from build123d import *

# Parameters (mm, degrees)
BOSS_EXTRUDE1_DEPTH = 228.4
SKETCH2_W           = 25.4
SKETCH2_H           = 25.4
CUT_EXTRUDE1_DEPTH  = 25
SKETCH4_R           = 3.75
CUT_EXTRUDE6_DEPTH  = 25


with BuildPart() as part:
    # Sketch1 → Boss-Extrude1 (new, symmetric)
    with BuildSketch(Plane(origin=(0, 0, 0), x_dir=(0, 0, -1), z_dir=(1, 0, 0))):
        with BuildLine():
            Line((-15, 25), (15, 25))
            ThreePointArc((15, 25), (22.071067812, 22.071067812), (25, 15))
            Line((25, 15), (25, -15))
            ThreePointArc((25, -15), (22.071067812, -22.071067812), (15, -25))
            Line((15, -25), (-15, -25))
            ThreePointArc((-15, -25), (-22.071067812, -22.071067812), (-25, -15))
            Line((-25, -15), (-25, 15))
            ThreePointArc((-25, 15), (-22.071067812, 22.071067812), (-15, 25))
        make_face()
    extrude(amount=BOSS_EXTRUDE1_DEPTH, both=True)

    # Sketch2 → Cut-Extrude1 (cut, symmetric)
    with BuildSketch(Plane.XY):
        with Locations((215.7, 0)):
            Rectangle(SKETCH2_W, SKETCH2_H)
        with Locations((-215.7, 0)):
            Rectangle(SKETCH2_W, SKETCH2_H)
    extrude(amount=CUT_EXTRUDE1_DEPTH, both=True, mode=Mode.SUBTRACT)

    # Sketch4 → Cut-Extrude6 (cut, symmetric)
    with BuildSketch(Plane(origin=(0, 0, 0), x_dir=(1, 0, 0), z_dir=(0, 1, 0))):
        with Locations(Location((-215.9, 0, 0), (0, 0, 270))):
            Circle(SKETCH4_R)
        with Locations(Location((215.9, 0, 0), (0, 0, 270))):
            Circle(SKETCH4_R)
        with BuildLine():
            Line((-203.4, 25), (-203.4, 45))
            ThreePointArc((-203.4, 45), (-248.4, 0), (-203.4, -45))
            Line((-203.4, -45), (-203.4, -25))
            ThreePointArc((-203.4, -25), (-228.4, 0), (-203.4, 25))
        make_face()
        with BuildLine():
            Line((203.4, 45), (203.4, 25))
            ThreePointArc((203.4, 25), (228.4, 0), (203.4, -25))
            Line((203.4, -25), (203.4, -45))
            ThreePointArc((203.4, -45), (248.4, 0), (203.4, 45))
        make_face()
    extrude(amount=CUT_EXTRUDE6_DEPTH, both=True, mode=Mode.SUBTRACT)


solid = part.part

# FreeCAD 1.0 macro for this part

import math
import FreeCAD as App
import Part
import Sketcher
from FreeCAD import Vector

doc = App.newDocument("Part")
body = doc.addObject("PartDesign::Body", "Body")

# Sketch on YZ plane
sketch1 = body.newObject("Sketcher::SketchObject", "Sketch")
sketch1.AttachmentSupport = (doc.getObject("YZ_Plane"), [""])
sketch1.MapMode = "FlatFace"
sketch1.addGeometry(Part.LineSegment(Vector(25, -15, 0), Vector(25, 15, 0)), False)
sketch1.addGeometry(Part.ArcOfCircle(Part.Circle(Vector(15, 15, 0), Vector(0, 0, 1), 10), math.radians(0), math.radians(90)), False)
sketch1.addGeometry(Part.LineSegment(Vector(15, 25, 0), Vector(-15, 25, 0)), False)
sketch1.addGeometry(Part.ArcOfCircle(Part.Circle(Vector(-15, 15, 0), Vector(0, 0, 1), 10), math.radians(90), math.radians(180)), False)
sketch1.addGeometry(Part.LineSegment(Vector(-25, 15, 0), Vector(-25, -15, 0)), False)
sketch1.addGeometry(Part.ArcOfCircle(Part.Circle(Vector(-15, -15, 0), Vector(0, 0, 1), 10), math.radians(180), math.radians(270)), False)
sketch1.addGeometry(Part.LineSegment(Vector(-15, -25, 0), Vector(15, -25, 0)), False)
sketch1.addGeometry(Part.ArcOfCircle(Part.Circle(Vector(15, -15, 0), Vector(0, 0, 1), 10), math.radians(-90), math.radians(0)), False)
sketch1.addConstraint(Sketcher.Constraint("Tangent", 0, 2, 1, 1))
sketch1.addConstraint(Sketcher.Constraint("Tangent", 1, 2, 2, 1))
sketch1.addConstraint(Sketcher.Constraint("Tangent", 2, 2, 3, 1))
sketch1.addConstraint(Sketcher.Constraint("Tangent", 3, 2, 4, 1))
sketch1.addConstraint(Sketcher.Constraint("Tangent", 4, 2, 5, 1))
sketch1.addConstraint(Sketcher.Constraint("Tangent", 5, 2, 6, 1))
sketch1.addConstraint(Sketcher.Constraint("Tangent", 6, 2, 7, 1))
sketch1.addConstraint(Sketcher.Constraint("Tangent", 7, 2, 0, 1))
sketch1.addConstraint(Sketcher.Constraint("Vertical", 0))
sketch1.addConstraint(Sketcher.Constraint("Horizontal", 2))
sketch1.addConstraint(Sketcher.Constraint("Vertical", 4))
sketch1.addConstraint(Sketcher.Constraint("Horizontal", 6))
sketch1.addConstraint(Sketcher.Constraint("Equal", 1, 3))
sketch1.addConstraint(Sketcher.Constraint("Equal", 3, 5))
sketch1.addConstraint(Sketcher.Constraint("Equal", 5, 7))
sketch1.addConstraint(Sketcher.Constraint("Symmetric", 1, 3, 5, 3, -1, 1))
sketch1.addConstraint(Sketcher.Constraint("Equal", 6, 0))
sketch1.addConstraint(Sketcher.Constraint("Radius", 1, 10.0))
sketch1.addConstraint(Sketcher.Constraint("DistanceX", 2, 2, 2, 1, 30.0))
pad1 = body.newObject("PartDesign::Pad", "Pad")
pad1.Profile = sketch1
pad1.Length = 456.8
pad1.Midplane = True

# Sketch on XY plane
sketch2 = body.newObject("Sketcher::SketchObject", "Sketch001")
sketch2.AttachmentSupport = (doc.getObject("XY_Plane"), [""])
sketch2.MapMode = "FlatFace"
sketch2.addGeometry(Part.LineSegment(Vector(203, 13, 0), Vector(203, -13, 0)), False)
sketch2.addGeometry(Part.LineSegment(Vector(203, -13, 0), Vector(228, -13, 0)), False)
sketch2.addGeometry(Part.LineSegment(Vector(228, -13, 0), Vector(228, 13, 0)), False)
sketch2.addGeometry(Part.LineSegment(Vector(228, 13, 0), Vector(203, 13, 0)), False)
sketch2.addGeometry(Part.LineSegment(Vector(-228, 13, 0), Vector(-228, -13, 0)), False)
sketch2.addGeometry(Part.LineSegment(Vector(-228, -13, 0), Vector(-203, -13, 0)), False)
sketch2.addGeometry(Part.LineSegment(Vector(-203, -13, 0), Vector(-203, 13, 0)), False)
sketch2.addGeometry(Part.LineSegment(Vector(-203, 13, 0), Vector(-228, 13, 0)), False)
sketch2.addConstraint(Sketcher.Constraint("Coincident", 0, 2, 1, 1))
sketch2.addConstraint(Sketcher.Constraint("Coincident", 1, 2, 2, 1))
sketch2.addConstraint(Sketcher.Constraint("Coincident", 2, 2, 3, 1))
sketch2.addConstraint(Sketcher.Constraint("Coincident", 3, 2, 0, 1))
sketch2.addConstraint(Sketcher.Constraint("Coincident", 4, 2, 5, 1))
sketch2.addConstraint(Sketcher.Constraint("Coincident", 5, 2, 6, 1))
sketch2.addConstraint(Sketcher.Constraint("Coincident", 6, 2, 7, 1))
sketch2.addConstraint(Sketcher.Constraint("Coincident", 7, 2, 4, 1))
sketch2.addConstraint(Sketcher.Constraint("Vertical", 0))
sketch2.addConstraint(Sketcher.Constraint("Horizontal", 1))
sketch2.addConstraint(Sketcher.Constraint("Vertical", 2))
sketch2.addConstraint(Sketcher.Constraint("Horizontal", 3))
sketch2.addConstraint(Sketcher.Constraint("Vertical", 4))
sketch2.addConstraint(Sketcher.Constraint("Horizontal", 5))
sketch2.addConstraint(Sketcher.Constraint("Vertical", 6))
sketch2.addConstraint(Sketcher.Constraint("Horizontal", 7))
sketch2.addConstraint(Sketcher.Constraint("Symmetric", 2, 2, 4, 2, -1, 1))
sketch2.addConstraint(Sketcher.Constraint("Symmetric", 0, 2, 6, 2, -1, 1))
sketch2.addConstraint(Sketcher.Constraint("Horizontal", 1, 2, 4, 2))
sketch2.addConstraint(Sketcher.Constraint("Equal", 7, 0))
sketch2.addConstraint(Sketcher.Constraint("DistanceX", 1, 1, 1, 2, 25.4))
sketch2.addConstraint(Sketcher.Constraint("DistanceX", -1, 1, 0, 2, 203.0))
pocket1 = body.newObject("PartDesign::Pocket", "Pocket")
pocket1.Profile = sketch2
pocket1.Length = 50
pocket1.Midplane = True

# Sketch on XZ plane
sketch3 = body.newObject("Sketcher::SketchObject", "Sketch002")
sketch3.AttachmentSupport = (doc.getObject("XZ_Plane"), [""])
sketch3.MapMode = "FlatFace"
sketch3.addGeometry(Part.Circle(Vector(-215.9, 0, 0), Vector(0, 0, 1), 3.8), False)
sketch3.addGeometry(Part.Circle(Vector(215.9, 0, 0), Vector(0, 0, 1), 3.8), False)
sketch3.addGeometry(Part.LineSegment(Vector(-203.4, -25, 0), Vector(-203.4, -45, 0)), False)
sketch3.addGeometry(Part.ArcOfCircle(Part.Circle(Vector(-203.4, 0, 0), Vector(0, 0, 1), 45), math.radians(90), math.radians(270)), False)
sketch3.addGeometry(Part.LineSegment(Vector(-203.4, 45, 0), Vector(-203.4, 25, 0)), False)
sketch3.addGeometry(Part.ArcOfCircle(Part.Circle(Vector(-203.4, 0, 0), Vector(0, 0, 1), 25), math.radians(90), math.radians(270)), False)
sketch3.addGeometry(Part.LineSegment(Vector(203.4, -45, 0), Vector(203.4, -25, 0)), False)
sketch3.addGeometry(Part.ArcOfCircle(Part.Circle(Vector(203.4, 0, 0), Vector(0, 0, 1), 25), math.radians(-90), math.radians(90)), False)
sketch3.addGeometry(Part.LineSegment(Vector(203.4, 25, 0), Vector(203.4, 45, 0)), False)
sketch3.addGeometry(Part.ArcOfCircle(Part.Circle(Vector(203.4, 0, 0), Vector(0, 0, 1), 45), math.radians(-90), math.radians(90)), False)
sketch3.addConstraint(Sketcher.Constraint("Coincident", 2, 2, 3, 2))
sketch3.addConstraint(Sketcher.Constraint("Coincident", 3, 1, 4, 1))
sketch3.addConstraint(Sketcher.Constraint("Coincident", 4, 2, 5, 1))
sketch3.addConstraint(Sketcher.Constraint("Coincident", 5, 2, 2, 1))
sketch3.addConstraint(Sketcher.Constraint("Coincident", 6, 2, 7, 1))
sketch3.addConstraint(Sketcher.Constraint("Coincident", 7, 2, 8, 1))
sketch3.addConstraint(Sketcher.Constraint("Coincident", 8, 2, 9, 2))
sketch3.addConstraint(Sketcher.Constraint("Coincident", 9, 1, 6, 1))
sketch3.addConstraint(Sketcher.Constraint("Vertical", 2))
sketch3.addConstraint(Sketcher.Constraint("Vertical", 4))
sketch3.addConstraint(Sketcher.Constraint("Vertical", 6))
sketch3.addConstraint(Sketcher.Constraint("Vertical", 8))
sketch3.addConstraint(Sketcher.Constraint("Coincident", 5, 3, 3, 3))
sketch3.addConstraint(Sketcher.Constraint("Coincident", 9, 3, 7, 3))
sketch3.addConstraint(Sketcher.Constraint("Equal", 0, 1))
sketch3.addConstraint(Sketcher.Constraint("Equal", 5, 7))
sketch3.addConstraint(Sketcher.Constraint("Equal", 3, 9))
sketch3.addConstraint(Sketcher.Constraint("Symmetric", 0, 3, 1, 3, -1, 1))
sketch3.addConstraint(Sketcher.Constraint("Symmetric", 3, 3, 7, 3, -1, 1))
sketch3.addConstraint(Sketcher.Constraint("Symmetric", 5, 2, 6, 2, -2))
sketch3.addConstraint(Sketcher.Constraint("PointOnObject", 0, 3, -1))
sketch3.addConstraint(Sketcher.Constraint("Vertical", 5, 3, 2, 2))
sketch3.addConstraint(Sketcher.Constraint("Vertical", 2, 2, 3, 1))
sketch3.addConstraint(Sketcher.Constraint("Vertical", 6, 2, 7, 2))
sketch3.addConstraint(Sketcher.Constraint("Radius", 3, 45.0))
sketch3.addConstraint(Sketcher.Constraint("Radius", 5, 25.0))
sketch3.addConstraint(Sketcher.Constraint("Diameter", 0, 7.5))
sketch3.addConstraint(Sketcher.Constraint("DistanceX", 0, 3, -1, 1, 215.9))
sketch3.addConstraint(Sketcher.Constraint("DistanceX", 3, 3, -1, 1, 203.4))
pocket2 = body.newObject("PartDesign::Pocket", "Pocket001")
pocket2.Profile = sketch3
pocket2.Length = 50
pocket2.Midplane = True

doc.recompute()
